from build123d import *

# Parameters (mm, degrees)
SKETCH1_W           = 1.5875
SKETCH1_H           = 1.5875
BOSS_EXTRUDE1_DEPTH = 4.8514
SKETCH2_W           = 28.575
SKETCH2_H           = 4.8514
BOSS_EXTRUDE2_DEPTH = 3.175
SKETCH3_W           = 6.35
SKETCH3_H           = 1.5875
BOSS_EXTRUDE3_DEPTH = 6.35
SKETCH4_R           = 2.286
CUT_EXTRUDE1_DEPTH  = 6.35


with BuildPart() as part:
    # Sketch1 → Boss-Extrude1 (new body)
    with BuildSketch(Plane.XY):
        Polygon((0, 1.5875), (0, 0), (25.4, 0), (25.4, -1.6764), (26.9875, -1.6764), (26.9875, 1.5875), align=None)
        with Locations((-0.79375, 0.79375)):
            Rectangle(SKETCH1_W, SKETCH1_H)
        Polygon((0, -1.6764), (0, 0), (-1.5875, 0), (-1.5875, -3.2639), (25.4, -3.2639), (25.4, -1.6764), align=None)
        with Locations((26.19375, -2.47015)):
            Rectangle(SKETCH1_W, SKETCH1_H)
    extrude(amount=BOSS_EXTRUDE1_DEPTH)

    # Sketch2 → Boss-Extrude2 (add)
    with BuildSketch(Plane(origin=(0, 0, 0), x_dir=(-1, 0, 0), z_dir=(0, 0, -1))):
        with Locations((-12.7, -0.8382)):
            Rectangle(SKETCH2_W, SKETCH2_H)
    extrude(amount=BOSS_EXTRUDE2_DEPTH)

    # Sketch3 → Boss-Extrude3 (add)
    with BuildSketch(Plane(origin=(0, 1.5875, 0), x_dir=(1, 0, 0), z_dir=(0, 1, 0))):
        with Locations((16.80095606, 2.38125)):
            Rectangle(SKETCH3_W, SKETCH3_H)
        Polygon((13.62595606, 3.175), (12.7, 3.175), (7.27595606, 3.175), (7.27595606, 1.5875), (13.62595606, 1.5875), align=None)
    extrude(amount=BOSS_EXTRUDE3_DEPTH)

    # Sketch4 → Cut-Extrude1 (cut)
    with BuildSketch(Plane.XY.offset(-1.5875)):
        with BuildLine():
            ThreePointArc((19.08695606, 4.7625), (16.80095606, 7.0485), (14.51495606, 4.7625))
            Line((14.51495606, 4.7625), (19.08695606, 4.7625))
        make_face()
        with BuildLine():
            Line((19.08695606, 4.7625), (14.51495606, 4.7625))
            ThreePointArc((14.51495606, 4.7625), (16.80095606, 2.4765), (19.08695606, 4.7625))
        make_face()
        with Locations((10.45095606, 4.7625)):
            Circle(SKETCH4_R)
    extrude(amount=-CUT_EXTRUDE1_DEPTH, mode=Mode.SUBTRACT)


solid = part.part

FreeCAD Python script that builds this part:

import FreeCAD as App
import Part
import Sketcher
from FreeCAD import Vector
Q = App.Units.Quantity

doc = App.newDocument("Part")
params = doc.addObject("Spreadsheet::Sheet", "Params")
for row, (alias, value) in enumerate([
    ("sketch1_width", "1 in"),
    ("sketch1_width2", "1.125 in"),
    ("sketch1_height", "0.191 in"),
    ("sketch1_height2", "0.066 in"),
    ("pad1_length", "0.191 in"),
    ("sketch2_width", "1.125 in"),
    ("sketch2_height", "0.191 in"),
    ("pad2_length", "0.125 in"),
    ("sketch3_width", "0.5 in"),
    ("sketch3_height", "0.0625 in"),
    ("pad3_length", "0.25 in"),
    ("sketch4_diameter", "0.18 in"),
    ("pocket1_length", "0.25 in"),
], start=1):
    params.set(f"A{row}", alias)
    params.set(f"B{row}", "=" + value)
    params.setAlias(f"B{row}", alias)

body = doc.addObject("PartDesign::Body", "Body")

# Sketch on XY plane
sketch1 = doc.addObject("Sketcher::SketchObject", "Sketch")
body.addObject(sketch1)
sketch1.AttachmentSupport = (doc.XY_Plane, [""])
sketch1.MapMode = "FlatFace"
sketch1.addGeometry(Part.LineSegment(Vector(-1.5875, -3.2639, 0), Vector(26.9875, -3.2639, 0)), False)
sketch1.addGeometry(Part.LineSegment(Vector(26.9875, -3.2639, 0), Vector(26.9875, 1.5875, 0)), False)
sketch1.addGeometry(Part.LineSegment(Vector(26.9875, 1.5875, 0), Vector(-1.5875, 1.5875, 0)), False)
sketch1.addGeometry(Part.LineSegment(Vector(-1.5875, 1.5875, 0), Vector(-1.5875, -3.2639, 0)), False)
sketch1.addGeometry(Part.LineSegment(Vector(25.4, 0, 0), Vector(25.4, -1.6764, 0)), False)
sketch1.addGeometry(Part.LineSegment(Vector(25.4, -1.6764, 0), Vector(0, -1.6764, 0)), False)
sketch1.addGeometry(Part.LineSegment(Vector(0, -1.6764, 0), Vector(0, 0, 0)), False)
sketch1.addGeometry(Part.LineSegment(Vector(0, 0, 0), Vector(25.4, 0, 0)), False)
sketch1.addConstraint(Sketcher.Constraint("Coincident", 0, 2, 1, 1))
sketch1.addConstraint(Sketcher.Constraint("Coincident", 1, 2, 2, 1))
sketch1.addConstraint(Sketcher.Constraint("Coincident", 2, 2, 3, 1))
sketch1.addConstraint(Sketcher.Constraint("Coincident", 3, 2, 0, 1))
sketch1.addConstraint(Sketcher.Constraint("Coincident", 4, 2, 5, 1))
sketch1.addConstraint(Sketcher.Constraint("Coincident", 5, 2, 6, 1))
sketch1.addConstraint(Sketcher.Constraint("Coincident", 6, 2, 7, 1))
sketch1.addConstraint(Sketcher.Constraint("Coincident", 7, 2, 4, 1))
sketch1.addConstraint(Sketcher.Constraint("Horizontal", 0))
sketch1.addConstraint(Sketcher.Constraint("Vertical", 1))
sketch1.addConstraint(Sketcher.Constraint("Horizontal", 2))
sketch1.addConstraint(Sketcher.Constraint("Vertical", 3))
sketch1.addConstraint(Sketcher.Constraint("Vertical", 4))
sketch1.addConstraint(Sketcher.Constraint("Horizontal", 5))
sketch1.addConstraint(Sketcher.Constraint("Vertical", 6))
sketch1.addConstraint(Sketcher.Constraint("Horizontal", 7))
sketch1.addConstraint(Sketcher.Constraint("Coincident", 6, 2, -1, 1))
sketch1.addConstraint(Sketcher.Constraint("DistanceX", 5, 2, 5, 1, Q("1 in")))
sketch1.addConstraint(Sketcher.Constraint("DistanceX", 0, 1, 0, 2, Q("1.125 in")))
sketch1.addConstraint(Sketcher.Constraint("DistanceY", 1, 1, 1, 2, Q("0.191 in")))
sketch1.addConstraint(Sketcher.Constraint("DistanceY", 4, 2, 4, 1, Q("0.066 in")))
sketch1.addConstraint(Sketcher.Constraint("DistanceX", -1, 1, 0, 2, Q("1.0625 in")))
sketch1.addConstraint(Sketcher.Constraint("DistanceY", -1, 1, 1, 2, Q("0.0625 in")))
sketch1.setExpression("Constraints[17]", "Params.sketch1_width")
sketch1.setExpression("Constraints[18]", "Params.sketch1_width2")
sketch1.setExpression("Constraints[19]", "Params.sketch1_height")
sketch1.setExpression("Constraints[20]", "Params.sketch1_height2")
pad1 = doc.addObject("PartDesign::Pad", "Pad")
body.addObject(pad1)
pad1.Profile = sketch1
pad1.setExpression("Length", "Params.pad1_length")

# Sketch on XY plane
sketch2 = doc.addObject("Sketcher::SketchObject", "Sketch001")
body.addObject(sketch2)
sketch2.AttachmentSupport = (doc.XY_Plane, [""])
sketch2.MapMode = "FlatFace"
sketch2.addGeometry(Part.LineSegment(Vector(26.9875, 1.5875, 0), Vector(26.9875, -3.2639, 0)), False)
sketch2.addGeometry(Part.LineSegment(Vector(26.9875, -3.2639, 0), Vector(-1.5875, -3.2639, 0)), False)
sketch2.addGeometry(Part.LineSegment(Vector(-1.5875, -3.2639, 0), Vector(-1.5875, 1.5875, 0)), False)
sketch2.addGeometry(Part.LineSegment(Vector(-1.5875, 1.5875, 0), Vector(26.9875, 1.5875, 0)), False)
sketch2.addConstraint(Sketcher.Constraint("Coincident", 0, 2, 1, 1))
sketch2.addConstraint(Sketcher.Constraint("Coincident", 1, 2, 2, 1))
sketch2.addConstraint(Sketcher.Constraint("Coincident", 2, 2, 3, 1))
sketch2.addConstraint(Sketcher.Constraint("Coincident", 3, 2, 0, 1))
sketch2.addConstraint(Sketcher.Constraint("Vertical", 0))
sketch2.addConstraint(Sketcher.Constraint("Horizontal", 1))
sketch2.addConstraint(Sketcher.Constraint("Vertical", 2))
sketch2.addConstraint(Sketcher.Constraint("Horizontal", 3))
sketch2.addConstraint(Sketcher.Constraint("DistanceX", 1, 2, 1, 1, Q("1.125 in")))
sketch2.addConstraint(Sketcher.Constraint("DistanceY", 0, 2, 0, 1, Q("0.191 in")))
sketch2.addConstraint(Sketcher.Constraint("DistanceX", -1, 1, 0, 2, Q("1.0625 in")))
sketch2.addConstraint(Sketcher.Constraint("DistanceY", -1, 1, 2, 2, Q("0.0625 in")))
sketch2.setExpression("Constraints[8]", "Params.sketch2_width")
sketch2.setExpression("Constraints[9]", "Params.sketch2_height")
pad2 = doc.addObject("PartDesign::Pad", "Pad001")
body.addObject(pad2)
pad2.Profile = sketch2
pad2.setExpression("Length", "Params.pad2_length")
pad2.Reversed = True

# Sketch on XZ plane
sketch3 = doc.addObject("Sketcher::SketchObject", "Sketch002")
body.addObject(sketch3)
sketch3.AttachmentSupport = (doc.XZ_Plane, [""])
sketch3.MapMode = "FlatFace"
sketch3.AttachmentOffset = App.Placement(Vector(0, 0, -0.0625 * 25.4), App.Rotation())
sketch3.addGeometry(Part.LineSegment(Vector(19.975956, -1.5875, 0), Vector(19.975956, -3.175, 0)), False)
sketch3.addGeometry(Part.LineSegment(Vector(19.975956, -3.175, 0), Vector(7.275956, -3.175, 0)), False)
sketch3.addGeometry(Part.LineSegment(Vector(7.275956, -3.175, 0), Vector(7.275956, -1.5875, 0)), False)
sketch3.addGeometry(Part.LineSegment(Vector(7.275956, -1.5875, 0), Vector(19.975956, -1.5875, 0)), False)
sketch3.addConstraint(Sketcher.Constraint("Coincident", 0, 2, 1, 1))
sketch3.addConstraint(Sketcher.Constraint("Coincident", 1, 2, 2, 1))
sketch3.addConstraint(Sketcher.Constraint("Coincident", 2, 2, 3, 1))
sketch3.addConstraint(Sketcher.Constraint("Coincident", 3, 2, 0, 1))
sketch3.addConstraint(Sketcher.Constraint("Vertical", 0))
sketch3.addConstraint(Sketcher.Constraint("Horizontal", 1))
sketch3.addConstraint(Sketcher.Constraint("Vertical", 2))
sketch3.addConstraint(Sketcher.Constraint("Horizontal", 3))
sketch3.addConstraint(Sketcher.Constraint("DistanceX", 1, 2, 1, 1, Q("0.5 in")))
sketch3.addConstraint(Sketcher.Constraint("DistanceY", 0, 2, 0, 1, Q("0.0625 in")))
sketch3.addConstraint(Sketcher.Constraint("DistanceY", 0, 2, -1, 1, Q("0.125 in")))
sketch3.addConstraint(Sketcher.Constraint("DistanceX", -1, 1, 0, 2, 19.975956))
sketch3.setExpression("Constraints[8]", "Params.sketch3_width")
sketch3.setExpression("Constraints[9]", "Params.sketch3_height")
pad3 = doc.addObject("PartDesign::Pad", "Pad002")
body.addObject(pad3)
pad3.Profile = sketch3
pad3.setExpression("Length", "Params.pad3_length")
pad3.Reversed = True

# Sketch on XY plane
sketch4 = doc.addObject("Sketcher::SketchObject", "Sketch003")
body.addObject(sketch4)
sketch4.AttachmentSupport = (doc.XY_Plane, [""])
sketch4.MapMode = "FlatFace"
sketch4.AttachmentOffset = App.Placement(Vector(0, 0, -0.0625 * 25.4), App.Rotation())
sketch4.addGeometry(Part.Circle(Vector(16.800956, 4.7625, 0), Vector(0, 0, 1), 2.286), False)
sketch4.addGeometry(Part.Circle(Vector(10.450956, 4.7625, 0), Vector(0, 0, 1), 2.286), False)
sketch4.addConstraint(Sketcher.Constraint("Equal", 0, 1))
sketch4.addConstraint(Sketcher.Constraint("Horizontal", 0, 3, 1, 3))
sketch4.addConstraint(Sketcher.Constraint("Diameter", 0, Q("0.18 in")))
sketch4.addConstraint(Sketcher.Constraint("DistanceX", 1, 3, 0, 3, Q("0.25 in")))
sketch4.addConstraint(Sketcher.Constraint("DistanceY", -1, 1, 0, 3, Q("0.1875 in")))
sketch4.addConstraint(Sketcher.Constraint("DistanceX", -1, 1, 0, 3, 16.800956))
sketch4.setExpression("Constraints[2]", "Params.sketch4_diameter")
pocket1 = doc.addObject("PartDesign::Pocket", "Pocket")
body.addObject(pocket1)
pocket1.Profile = sketch4
pocket1.setExpression("Length", "Params.pocket1_length")

doc.recompute()
